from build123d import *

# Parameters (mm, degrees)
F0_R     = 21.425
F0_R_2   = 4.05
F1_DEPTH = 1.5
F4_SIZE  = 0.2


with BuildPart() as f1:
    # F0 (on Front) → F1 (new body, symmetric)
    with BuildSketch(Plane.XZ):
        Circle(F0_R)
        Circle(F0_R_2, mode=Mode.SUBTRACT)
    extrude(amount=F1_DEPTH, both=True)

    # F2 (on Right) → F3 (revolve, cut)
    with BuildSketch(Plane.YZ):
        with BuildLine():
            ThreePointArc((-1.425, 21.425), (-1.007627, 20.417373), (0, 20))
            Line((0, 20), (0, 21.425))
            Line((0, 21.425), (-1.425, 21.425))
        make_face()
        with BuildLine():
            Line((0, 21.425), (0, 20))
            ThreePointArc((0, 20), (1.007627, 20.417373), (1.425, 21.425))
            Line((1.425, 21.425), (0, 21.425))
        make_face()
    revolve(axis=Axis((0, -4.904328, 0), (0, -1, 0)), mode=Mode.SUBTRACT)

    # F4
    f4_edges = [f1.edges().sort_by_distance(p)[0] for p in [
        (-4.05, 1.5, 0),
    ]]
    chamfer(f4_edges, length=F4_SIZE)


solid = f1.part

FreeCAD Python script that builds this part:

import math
import FreeCAD as App
import Part
import Sketcher
from FreeCAD import Vector


def edges_at(feature, points):
    """Names of the edges that pass closest to the given points."""
    edges = feature.Shape.Edges
    near = lambda p: min(range(len(edges)), key=lambda i: edges[i].distToShape(Part.Vertex(*p))[0])
    return sorted({f"Edge{near(p) + 1}" for p in points})

doc = App.newDocument("Part")
body = doc.addObject("PartDesign::Body", "Body")

sketch1 = doc.addObject("Sketcher::SketchObject", "Sketch")
body.addObject(sketch1)
sketch1.AttachmentSupport = (doc.XZ_Plane, [""])
sketch1.MapMode = "FlatFace"
sketch1.addGeometry([
    Part.Circle(Vector(0, 0, 0), Vector(0, 0, 1), 21.4),
    Part.Circle(Vector(0, 0, 0), Vector(0, 0, 1), 4),
], False)
sketch1.addConstraint([
    Sketcher.Constraint("Coincident", 0, 3, -1, 1),
    Sketcher.Constraint("Coincident", 1, 3, -1, 1),
    Sketcher.Constraint("Diameter", 1, 8.1),
    Sketcher.Constraint("Diameter", 0, 42.85),
])
pad1 = doc.addObject("PartDesign::Pad", "Pad")
body.addObject(pad1)
pad1.Profile = sketch1
pad1.Length = 3
pad1.Midplane = True

sketch2 = doc.addObject("Sketcher::SketchObject", "Sketch001")
body.addObject(sketch2)
sketch2.AttachmentSupport = (doc.YZ_Plane, [""])
sketch2.MapMode = "FlatFace"
sketch2.addGeometry([
    Part.ArcOfCircle(Part.Circle(Vector(0, 21.4, 0), Vector(0, 0, 1), 1.4), math.radians(-180), math.radians(-90)),
    Part.ArcOfCircle(Part.Circle(Vector(0, 21.4, 0), Vector(0, 0, 1), 1.4), math.radians(-90), math.radians(0)),
    Part.LineSegment(Vector(1.4, 21.4, 0), Vector(-1.4, 21.4, 0)),
], False)
sketch2.addConstraint([
    Sketcher.Constraint("Tangent", 0, 2, 1, 1),
    Sketcher.Constraint("Coincident", 1, 2, 2, 1),
    Sketcher.Constraint("Coincident", 2, 2, 0, 1),
    Sketcher.Constraint("Horizontal", 2),
    Sketcher.Constraint("Equal", 0, 1),
    Sketcher.Constraint("PointOnObject", 0, 3, -2),
    Sketcher.Constraint("PointOnObject", 0, 2, -2),
    Sketcher.Constraint("Horizontal", 0, 3, 1, 2),
    Sketcher.Constraint("DistanceY", -1, 1, 0, 2, 20.0),
    Sketcher.Constraint("Radius", 0, 1.425001),
])
groove = doc.addObject("PartDesign::Groove", "Groove")
body.addObject(groove)
groove.Profile = sketch2
groove.ReferenceAxis = (sketch2, ["H_Axis"])
groove.Angle = 360
doc.recompute()

chamfer = doc.addObject("PartDesign::Chamfer", "Chamfer")
body.addObject(chamfer)
chamfer.Base = (groove, edges_at(groove, [(-4.05, 1.5, 0)]))
chamfer.Size = 0.2

doc.recompute()
